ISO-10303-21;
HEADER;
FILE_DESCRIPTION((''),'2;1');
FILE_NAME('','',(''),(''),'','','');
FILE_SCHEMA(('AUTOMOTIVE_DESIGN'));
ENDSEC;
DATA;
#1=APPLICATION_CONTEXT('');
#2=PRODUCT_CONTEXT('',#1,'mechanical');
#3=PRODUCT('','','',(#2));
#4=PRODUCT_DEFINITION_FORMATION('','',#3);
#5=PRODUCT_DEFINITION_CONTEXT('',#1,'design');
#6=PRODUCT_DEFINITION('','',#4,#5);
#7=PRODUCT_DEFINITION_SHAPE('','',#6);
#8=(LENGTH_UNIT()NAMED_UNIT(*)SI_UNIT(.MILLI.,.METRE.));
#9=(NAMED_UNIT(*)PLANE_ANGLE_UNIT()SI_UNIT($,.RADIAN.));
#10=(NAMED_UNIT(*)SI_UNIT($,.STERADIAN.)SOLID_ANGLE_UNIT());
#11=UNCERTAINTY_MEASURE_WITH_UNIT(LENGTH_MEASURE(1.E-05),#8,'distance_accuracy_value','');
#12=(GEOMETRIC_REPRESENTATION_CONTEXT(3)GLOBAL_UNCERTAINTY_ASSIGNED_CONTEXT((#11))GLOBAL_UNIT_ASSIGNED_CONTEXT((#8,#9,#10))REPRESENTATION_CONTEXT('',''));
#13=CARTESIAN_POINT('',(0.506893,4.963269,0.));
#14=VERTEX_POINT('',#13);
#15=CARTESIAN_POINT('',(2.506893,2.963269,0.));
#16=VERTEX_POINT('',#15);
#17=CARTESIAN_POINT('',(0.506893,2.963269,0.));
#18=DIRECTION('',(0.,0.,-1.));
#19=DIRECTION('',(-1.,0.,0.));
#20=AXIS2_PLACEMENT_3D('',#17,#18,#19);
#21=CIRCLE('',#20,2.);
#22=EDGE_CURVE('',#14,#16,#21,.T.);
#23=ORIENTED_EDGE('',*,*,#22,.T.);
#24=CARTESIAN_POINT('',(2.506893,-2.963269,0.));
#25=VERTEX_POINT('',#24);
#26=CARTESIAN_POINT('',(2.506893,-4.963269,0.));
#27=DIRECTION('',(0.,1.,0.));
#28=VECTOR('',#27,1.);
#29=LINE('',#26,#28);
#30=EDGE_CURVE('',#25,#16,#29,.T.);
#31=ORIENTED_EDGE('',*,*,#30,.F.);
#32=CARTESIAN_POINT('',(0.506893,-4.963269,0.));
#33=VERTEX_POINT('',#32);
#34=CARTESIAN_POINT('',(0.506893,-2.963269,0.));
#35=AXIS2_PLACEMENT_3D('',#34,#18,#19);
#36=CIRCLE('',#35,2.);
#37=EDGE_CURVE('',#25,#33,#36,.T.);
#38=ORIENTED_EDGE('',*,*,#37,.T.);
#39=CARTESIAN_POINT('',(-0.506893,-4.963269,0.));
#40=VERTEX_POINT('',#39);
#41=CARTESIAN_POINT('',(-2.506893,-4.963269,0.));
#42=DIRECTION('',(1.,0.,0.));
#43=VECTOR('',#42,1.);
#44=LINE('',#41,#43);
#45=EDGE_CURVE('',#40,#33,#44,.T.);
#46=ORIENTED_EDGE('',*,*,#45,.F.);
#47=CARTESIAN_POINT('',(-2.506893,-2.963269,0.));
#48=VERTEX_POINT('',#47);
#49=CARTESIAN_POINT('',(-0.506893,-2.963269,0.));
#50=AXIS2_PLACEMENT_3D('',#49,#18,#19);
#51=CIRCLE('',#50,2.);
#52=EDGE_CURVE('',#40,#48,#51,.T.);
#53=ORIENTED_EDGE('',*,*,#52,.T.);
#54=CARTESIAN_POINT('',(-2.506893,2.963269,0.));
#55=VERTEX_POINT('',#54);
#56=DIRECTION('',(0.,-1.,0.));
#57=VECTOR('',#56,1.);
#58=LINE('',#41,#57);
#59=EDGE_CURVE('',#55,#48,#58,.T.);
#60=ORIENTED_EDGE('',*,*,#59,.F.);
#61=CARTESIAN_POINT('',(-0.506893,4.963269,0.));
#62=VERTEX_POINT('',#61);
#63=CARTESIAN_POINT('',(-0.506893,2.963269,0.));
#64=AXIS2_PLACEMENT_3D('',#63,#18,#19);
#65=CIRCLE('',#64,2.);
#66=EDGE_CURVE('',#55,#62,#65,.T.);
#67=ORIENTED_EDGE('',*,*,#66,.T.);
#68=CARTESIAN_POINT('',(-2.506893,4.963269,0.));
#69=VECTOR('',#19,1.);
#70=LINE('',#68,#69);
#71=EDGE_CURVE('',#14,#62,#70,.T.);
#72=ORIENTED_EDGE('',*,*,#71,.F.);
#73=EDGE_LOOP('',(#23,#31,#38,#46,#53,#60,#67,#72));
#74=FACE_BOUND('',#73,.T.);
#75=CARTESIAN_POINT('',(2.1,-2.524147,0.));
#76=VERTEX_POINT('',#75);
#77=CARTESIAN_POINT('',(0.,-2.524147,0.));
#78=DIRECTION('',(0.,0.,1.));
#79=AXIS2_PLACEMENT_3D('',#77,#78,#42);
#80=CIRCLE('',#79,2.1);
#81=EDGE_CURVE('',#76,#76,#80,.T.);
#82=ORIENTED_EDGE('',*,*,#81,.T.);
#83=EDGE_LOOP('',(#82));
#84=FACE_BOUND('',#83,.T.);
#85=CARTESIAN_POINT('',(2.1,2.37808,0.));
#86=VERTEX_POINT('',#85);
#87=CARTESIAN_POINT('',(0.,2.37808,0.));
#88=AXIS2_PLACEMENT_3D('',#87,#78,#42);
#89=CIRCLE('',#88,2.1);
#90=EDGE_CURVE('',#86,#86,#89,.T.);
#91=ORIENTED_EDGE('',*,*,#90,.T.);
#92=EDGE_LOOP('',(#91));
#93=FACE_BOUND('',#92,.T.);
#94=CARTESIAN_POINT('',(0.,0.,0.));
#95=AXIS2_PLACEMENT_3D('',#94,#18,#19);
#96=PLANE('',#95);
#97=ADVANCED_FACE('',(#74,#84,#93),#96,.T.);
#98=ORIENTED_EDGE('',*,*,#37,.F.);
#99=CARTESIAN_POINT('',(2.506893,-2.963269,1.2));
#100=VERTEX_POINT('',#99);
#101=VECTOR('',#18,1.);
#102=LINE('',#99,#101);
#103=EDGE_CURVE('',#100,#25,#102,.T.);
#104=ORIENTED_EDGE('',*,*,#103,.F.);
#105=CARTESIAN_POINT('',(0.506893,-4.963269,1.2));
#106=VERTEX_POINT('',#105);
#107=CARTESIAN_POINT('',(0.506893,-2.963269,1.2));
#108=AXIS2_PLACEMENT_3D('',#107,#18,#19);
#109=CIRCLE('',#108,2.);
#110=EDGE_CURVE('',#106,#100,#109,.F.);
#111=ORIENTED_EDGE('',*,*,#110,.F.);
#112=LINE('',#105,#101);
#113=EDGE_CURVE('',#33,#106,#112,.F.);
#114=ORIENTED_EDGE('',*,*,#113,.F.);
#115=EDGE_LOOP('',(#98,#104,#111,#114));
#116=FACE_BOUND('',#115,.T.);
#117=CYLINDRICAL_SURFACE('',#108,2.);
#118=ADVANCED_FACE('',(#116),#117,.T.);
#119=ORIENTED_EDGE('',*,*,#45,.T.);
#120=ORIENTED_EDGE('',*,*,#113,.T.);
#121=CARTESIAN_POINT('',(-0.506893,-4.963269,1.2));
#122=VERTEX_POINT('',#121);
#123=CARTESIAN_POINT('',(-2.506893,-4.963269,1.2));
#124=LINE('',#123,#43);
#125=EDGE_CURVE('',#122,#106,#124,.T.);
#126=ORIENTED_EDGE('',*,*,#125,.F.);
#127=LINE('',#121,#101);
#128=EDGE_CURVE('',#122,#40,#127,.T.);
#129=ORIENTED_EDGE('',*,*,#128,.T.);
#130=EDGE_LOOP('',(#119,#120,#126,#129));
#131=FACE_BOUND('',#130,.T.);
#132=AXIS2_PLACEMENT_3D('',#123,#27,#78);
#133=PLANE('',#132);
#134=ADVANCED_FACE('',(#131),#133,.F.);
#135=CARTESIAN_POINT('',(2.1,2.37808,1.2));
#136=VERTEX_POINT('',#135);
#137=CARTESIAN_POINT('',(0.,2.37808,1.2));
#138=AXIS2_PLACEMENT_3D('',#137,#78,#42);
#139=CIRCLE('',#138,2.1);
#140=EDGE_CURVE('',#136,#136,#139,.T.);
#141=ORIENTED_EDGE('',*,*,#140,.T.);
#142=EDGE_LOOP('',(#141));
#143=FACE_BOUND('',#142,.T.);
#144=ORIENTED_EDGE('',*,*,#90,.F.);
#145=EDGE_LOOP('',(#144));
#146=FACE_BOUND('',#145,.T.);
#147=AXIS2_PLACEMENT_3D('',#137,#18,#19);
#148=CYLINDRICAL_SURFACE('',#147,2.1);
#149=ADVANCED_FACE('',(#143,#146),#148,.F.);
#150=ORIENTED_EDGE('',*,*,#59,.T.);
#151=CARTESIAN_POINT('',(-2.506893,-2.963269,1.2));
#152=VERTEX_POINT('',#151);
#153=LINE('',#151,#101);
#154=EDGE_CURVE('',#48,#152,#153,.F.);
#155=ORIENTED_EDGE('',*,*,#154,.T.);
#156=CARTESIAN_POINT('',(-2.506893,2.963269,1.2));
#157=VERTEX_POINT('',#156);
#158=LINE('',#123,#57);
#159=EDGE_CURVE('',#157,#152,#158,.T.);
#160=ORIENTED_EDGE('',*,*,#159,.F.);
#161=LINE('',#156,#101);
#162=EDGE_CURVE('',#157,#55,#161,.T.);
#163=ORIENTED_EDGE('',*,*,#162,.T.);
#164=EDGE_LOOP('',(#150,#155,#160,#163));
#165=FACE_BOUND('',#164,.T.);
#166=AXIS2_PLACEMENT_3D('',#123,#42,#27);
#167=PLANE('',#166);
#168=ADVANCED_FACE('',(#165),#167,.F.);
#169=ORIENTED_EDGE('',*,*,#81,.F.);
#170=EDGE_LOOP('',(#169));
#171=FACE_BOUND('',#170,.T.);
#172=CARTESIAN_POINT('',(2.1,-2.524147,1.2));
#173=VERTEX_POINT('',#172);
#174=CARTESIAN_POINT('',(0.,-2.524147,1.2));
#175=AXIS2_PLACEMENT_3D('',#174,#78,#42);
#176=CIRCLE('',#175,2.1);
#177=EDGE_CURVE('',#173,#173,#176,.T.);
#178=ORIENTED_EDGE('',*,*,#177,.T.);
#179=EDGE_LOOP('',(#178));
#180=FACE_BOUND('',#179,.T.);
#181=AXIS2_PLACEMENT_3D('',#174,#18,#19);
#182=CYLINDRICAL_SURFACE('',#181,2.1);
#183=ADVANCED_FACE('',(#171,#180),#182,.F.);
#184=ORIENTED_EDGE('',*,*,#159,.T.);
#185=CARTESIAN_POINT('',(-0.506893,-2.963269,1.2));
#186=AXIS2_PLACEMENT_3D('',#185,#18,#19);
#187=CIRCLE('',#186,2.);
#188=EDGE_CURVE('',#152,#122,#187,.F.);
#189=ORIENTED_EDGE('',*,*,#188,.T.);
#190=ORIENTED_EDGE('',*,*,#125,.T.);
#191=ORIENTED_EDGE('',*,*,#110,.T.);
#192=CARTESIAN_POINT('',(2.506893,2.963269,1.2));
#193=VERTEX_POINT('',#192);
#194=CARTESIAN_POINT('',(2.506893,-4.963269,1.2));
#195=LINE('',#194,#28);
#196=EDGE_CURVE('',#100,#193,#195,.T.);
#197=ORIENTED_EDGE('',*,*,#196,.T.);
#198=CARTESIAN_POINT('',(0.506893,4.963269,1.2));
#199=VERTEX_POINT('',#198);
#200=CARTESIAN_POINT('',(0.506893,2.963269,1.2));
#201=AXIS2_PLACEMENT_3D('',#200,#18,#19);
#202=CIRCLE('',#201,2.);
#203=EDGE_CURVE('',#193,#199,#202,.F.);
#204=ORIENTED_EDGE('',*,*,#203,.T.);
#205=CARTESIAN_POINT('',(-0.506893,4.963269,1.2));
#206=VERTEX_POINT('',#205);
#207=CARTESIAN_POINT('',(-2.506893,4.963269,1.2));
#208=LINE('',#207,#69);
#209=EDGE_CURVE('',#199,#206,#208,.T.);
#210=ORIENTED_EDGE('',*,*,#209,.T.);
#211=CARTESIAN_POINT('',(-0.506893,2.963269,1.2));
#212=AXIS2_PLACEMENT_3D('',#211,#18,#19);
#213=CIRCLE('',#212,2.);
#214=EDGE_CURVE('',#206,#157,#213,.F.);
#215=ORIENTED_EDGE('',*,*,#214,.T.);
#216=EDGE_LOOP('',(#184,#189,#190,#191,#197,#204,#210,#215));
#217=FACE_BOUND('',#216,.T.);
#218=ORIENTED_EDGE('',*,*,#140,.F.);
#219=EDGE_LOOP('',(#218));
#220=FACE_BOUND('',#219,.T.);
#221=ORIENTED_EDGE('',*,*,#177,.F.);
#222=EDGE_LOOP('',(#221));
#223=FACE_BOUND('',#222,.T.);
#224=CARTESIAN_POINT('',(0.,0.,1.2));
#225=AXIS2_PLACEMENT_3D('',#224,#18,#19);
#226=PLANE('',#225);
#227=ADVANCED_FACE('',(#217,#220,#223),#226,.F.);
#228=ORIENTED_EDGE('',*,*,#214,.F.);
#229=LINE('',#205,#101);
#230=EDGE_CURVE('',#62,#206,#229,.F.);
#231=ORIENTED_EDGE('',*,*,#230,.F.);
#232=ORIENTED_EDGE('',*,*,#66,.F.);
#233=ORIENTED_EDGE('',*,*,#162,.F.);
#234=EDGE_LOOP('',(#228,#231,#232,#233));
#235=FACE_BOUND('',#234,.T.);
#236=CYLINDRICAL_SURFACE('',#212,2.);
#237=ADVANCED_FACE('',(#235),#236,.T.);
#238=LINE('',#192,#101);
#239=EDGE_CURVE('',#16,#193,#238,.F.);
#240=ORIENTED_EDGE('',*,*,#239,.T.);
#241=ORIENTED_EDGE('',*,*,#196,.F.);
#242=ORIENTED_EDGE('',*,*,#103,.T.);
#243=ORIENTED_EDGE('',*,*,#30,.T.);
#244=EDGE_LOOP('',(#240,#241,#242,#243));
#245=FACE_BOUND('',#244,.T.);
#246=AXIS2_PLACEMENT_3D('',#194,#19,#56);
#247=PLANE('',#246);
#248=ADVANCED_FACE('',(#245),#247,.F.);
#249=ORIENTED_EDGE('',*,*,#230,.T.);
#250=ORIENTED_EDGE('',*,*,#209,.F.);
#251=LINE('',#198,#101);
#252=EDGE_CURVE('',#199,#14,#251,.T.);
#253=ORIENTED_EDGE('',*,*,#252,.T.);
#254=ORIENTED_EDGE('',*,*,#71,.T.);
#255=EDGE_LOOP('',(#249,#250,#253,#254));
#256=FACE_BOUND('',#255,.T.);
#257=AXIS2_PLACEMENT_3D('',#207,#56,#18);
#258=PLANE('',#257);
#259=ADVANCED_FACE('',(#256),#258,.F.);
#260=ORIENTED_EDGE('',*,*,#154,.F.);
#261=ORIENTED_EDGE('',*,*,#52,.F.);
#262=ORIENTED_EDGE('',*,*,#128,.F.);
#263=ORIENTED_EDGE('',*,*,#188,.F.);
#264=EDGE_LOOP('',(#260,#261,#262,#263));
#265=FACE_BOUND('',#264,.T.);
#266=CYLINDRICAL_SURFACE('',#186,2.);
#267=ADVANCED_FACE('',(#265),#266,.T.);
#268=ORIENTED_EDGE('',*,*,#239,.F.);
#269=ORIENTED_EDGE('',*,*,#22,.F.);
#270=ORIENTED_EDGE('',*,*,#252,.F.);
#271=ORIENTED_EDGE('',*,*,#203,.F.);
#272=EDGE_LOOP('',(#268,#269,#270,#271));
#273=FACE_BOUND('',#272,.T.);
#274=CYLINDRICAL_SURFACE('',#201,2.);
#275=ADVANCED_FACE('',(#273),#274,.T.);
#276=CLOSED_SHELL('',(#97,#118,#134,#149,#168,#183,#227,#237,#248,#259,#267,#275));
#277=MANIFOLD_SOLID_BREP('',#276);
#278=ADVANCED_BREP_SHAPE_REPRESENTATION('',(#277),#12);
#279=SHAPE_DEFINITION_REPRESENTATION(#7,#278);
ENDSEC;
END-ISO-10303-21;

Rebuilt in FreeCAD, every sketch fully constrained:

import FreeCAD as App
import Part
import Sketcher

V = App.Vector


def edges_at(feature, points):
    """Names of the edges that pass closest to the given points."""
    edges = feature.Shape.Edges
    near = lambda p: min(range(len(edges)), key=lambda i: edges[i].distToShape(Part.Vertex(*p))[0])
    return sorted({f"Edge{near(p) + 1}" for p in points})


def add_polygon(sketch, points):
    """Adds a closed chain of lines whose ends are joined by coincident constraints."""
    first, n = sketch.GeometryCount, len(points)
    for a, b in zip(points, points[1:] + points[:1]):
        sketch.addGeometry(Part.LineSegment(App.Vector(*a, 0), App.Vector(*b, 0)), False)
    for i in range(n):
        sketch.addConstraint(Sketcher.Constraint("Coincident", first + i, 2, first + (i + 1) % n, 1))

doc = App.newDocument("Part")
params = doc.addObject("Spreadsheet::Sheet", "Params")
for row, (alias, value) in enumerate([
    ("sketch1_diameter", "4.2 mm"),
    ("pad1_length", "1.2 mm"),
    ("fillet_radius", "2 mm"),
], start=1):
    params.set(f"A{row}", alias)
    params.set(f"B{row}", "=" + value)
    params.setAlias(f"B{row}", alias)

body = doc.addObject("PartDesign::Body", "Body")

# Sketch on XY plane
sketch1 = doc.addObject("Sketcher::SketchObject", "Sketch")
body.addObject(sketch1)
sketch1.AttachmentSupport = (doc.XY_Plane, [""])
sketch1.MapMode = "FlatFace"
add_polygon(sketch1, [(-2.5, 5), (-2.5, -5), (2.5, -5), (2.5, 5)])  # lines 0-3
sketch1.addGeometry(Part.Circle(V(0, -2.5, 0), V(0, 0, 1), 2.1), False)  # 4
sketch1.addGeometry(Part.Circle(V(0, 2.4, 0), V(0, 0, 1), 2.1), False)  # 5
sketch1.addConstraint(Sketcher.Constraint("Vertical", 0))
sketch1.addConstraint(Sketcher.Constraint("Horizontal", 1))
sketch1.addConstraint(Sketcher.Constraint("Vertical", 2))
sketch1.addConstraint(Sketcher.Constraint("Horizontal", 3))
sketch1.addConstraint(Sketcher.Constraint("Equal", 4, 5))
sketch1.addConstraint(Sketcher.Constraint("Symmetric", 0, 2, 2, 2, -1, 1))
sketch1.addConstraint(Sketcher.Constraint("PointOnObject", 4, 3, -2))
sketch1.addConstraint(Sketcher.Constraint("PointOnObject", 5, 3, -2))
sketch1.addConstraint(Sketcher.Constraint("Diameter", 4, 4.2))
sketch1.addConstraint(Sketcher.Constraint("DistanceX", 1, 1, 1, 2, 5.013786))
sketch1.addConstraint(Sketcher.Constraint("DistanceY", 0, 2, 0, 1, 9.926537))
sketch1.addConstraint(Sketcher.Constraint("DistanceY", -1, 1, 5, 3, 2.37808))
sketch1.addConstraint(Sketcher.Constraint("DistanceY", 0, 2, 4, 3, 2.439122))
sketch1.setExpression("Constraints[12]", "Params.sketch1_diameter")
pad1 = doc.addObject("PartDesign::Pad", "Pad")
body.addObject(pad1)
pad1.Profile = sketch1
pad1.setExpression("Length", "Params.pad1_length")
doc.recompute()

fillet = doc.addObject("PartDesign::Fillet", "Fillet")
body.addObject(fillet)
fillet.Base = (pad1, edges_at(pad1, [
    (2.507, -4.963, 0.6),
    (-2.507, -4.963, 0.6),
    (-2.507, 4.963, 0.6),
    (2.507, 4.963, 0.6),
]))
fillet.setExpression("Radius", "Params.fillet_radius")

doc.recompute()
